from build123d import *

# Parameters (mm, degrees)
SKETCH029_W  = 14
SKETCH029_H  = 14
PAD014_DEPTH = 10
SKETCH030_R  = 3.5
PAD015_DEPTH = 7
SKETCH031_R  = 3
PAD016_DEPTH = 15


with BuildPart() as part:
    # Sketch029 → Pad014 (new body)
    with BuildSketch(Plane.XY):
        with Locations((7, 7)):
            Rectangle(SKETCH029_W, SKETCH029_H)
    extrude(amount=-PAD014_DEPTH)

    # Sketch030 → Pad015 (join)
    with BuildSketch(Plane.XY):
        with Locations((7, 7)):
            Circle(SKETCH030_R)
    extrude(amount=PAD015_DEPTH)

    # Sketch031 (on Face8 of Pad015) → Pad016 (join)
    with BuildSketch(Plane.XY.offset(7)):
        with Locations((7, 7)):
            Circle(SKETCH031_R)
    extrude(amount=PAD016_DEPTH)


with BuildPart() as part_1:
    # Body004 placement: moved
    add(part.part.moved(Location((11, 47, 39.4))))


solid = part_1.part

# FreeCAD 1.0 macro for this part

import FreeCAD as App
import Part
import Sketcher


def add_polygon(sketch, points):
    """Adds a closed chain of lines whose ends are joined by coincident constraints."""
    first, n = sketch.GeometryCount, len(points)
    for a, b in zip(points, points[1:] + points[:1]):
        sketch.addGeometry(Part.LineSegment(App.Vector(*a, 0), App.Vector(*b, 0)), False)
    for i in range(n):
        sketch.addConstraint(Sketcher.Constraint("Coincident", first + i, 2, first + (i + 1) % n, 1))

doc = App.newDocument("Part")
params = doc.addObject("Spreadsheet::Sheet", "Params")
for row, (alias, value) in enumerate([
    ("sketch1_width", "14 mm"),
    ("pad1_length", "10 mm"),
    ("sketch2_diameter", "7 mm"),
    ("pad2_length", "7 mm"),
    ("sketch3_diameter", "6 mm"),
    ("pad3_length", "15 mm"),
], start=1):
    params.set(f"A{row}", alias)
    params.set(f"B{row}", "=" + value)
    params.setAlias(f"B{row}", alias)

body = doc.addObject("PartDesign::Body", "Body")

# Sketch on XY plane
sketch1 = body.newObject("Sketcher::SketchObject", "Sketch")
sketch1.AttachmentSupport = (doc.getObject("XY_Plane"), [""])
sketch1.MapMode = "FlatFace"
add_polygon(sketch1, [(0, 14), (0, 0), (14, 0), (14, 14)])  # lines 0-3
sketch1.addConstraint([
    Sketcher.Constraint("Vertical", 0),
    Sketcher.Constraint("Horizontal", 1),
    Sketcher.Constraint("Vertical", 2),
    Sketcher.Constraint("Horizontal", 3),
    Sketcher.Constraint("Coincident", 0, 2, -1, 1),
    Sketcher.Constraint("Equal", 3, 0),
    Sketcher.Constraint("DistanceX", 1, 1, 1, 2, 14.0),
])
sketch1.setExpression("Constraints[10]", "Params.sketch1_width")
pad1 = body.newObject("PartDesign::Pad", "Pad")
pad1.Profile = sketch1
pad1.setExpression("Length", "Params.pad1_length")
pad1.Reversed = True

# Sketch on XY plane
sketch2 = body.newObject("Sketcher::SketchObject", "Sketch001")
sketch2.AttachmentSupport = (doc.getObject("XY_Plane"), [""])
sketch2.MapMode = "FlatFace"
sketch2.addGeometry(Part.Circle(App.Vector(7, 7, 0), App.Vector(0, 0, 1), 3.5), False)
sketch2.addConstraint([
    Sketcher.Constraint("Diameter", 0, 7.0),
    Sketcher.Constraint("DistanceX", -1, 1, 0, 3, 7.0),
    Sketcher.Constraint("DistanceY", -1, 1, 0, 3, 7.0),
])
sketch2.setExpression("Constraints[0]", "Params.sketch2_diameter")
pad2 = body.newObject("PartDesign::Pad", "Pad001")
pad2.Profile = sketch2
pad2.setExpression("Length", "Params.pad2_length")

# Sketch on XY plane
sketch3 = body.newObject("Sketcher::SketchObject", "Sketch002")
sketch3.AttachmentSupport = (doc.getObject("XY_Plane"), [""])
sketch3.MapMode = "FlatFace"
sketch3.AttachmentOffset = App.Placement(App.Vector(0, 0, 7), App.Rotation())
sketch3.addGeometry(Part.Circle(App.Vector(7, 7, 0), App.Vector(0, 0, 1), 3), False)
sketch3.addConstraint([
    Sketcher.Constraint("Diameter", 0, 6.0),
    Sketcher.Constraint("DistanceX", -1, 1, 0, 3, 7.0),
    Sketcher.Constraint("DistanceY", -1, 1, 0, 3, 7.0),
])
sketch3.setExpression("Constraints[0]", "Params.sketch3_diameter")
pad3 = body.newObject("PartDesign::Pad", "Pad002")
pad3.Profile = sketch3
pad3.setExpression("Length", "Params.pad3_length")
body2 = doc.addObject("PartDesign::Body", "Body001")
doc.recompute()

body.Placement = App.Placement(App.Vector(11, 47, 39.4), App.Rotation(App.Vector(0, 0, 1), 0))
boolean = body2.newObject("PartDesign::Boolean", "Boolean")
boolean.Type = "Fuse"
boolean.addObjects([body])

doc.recompute()
